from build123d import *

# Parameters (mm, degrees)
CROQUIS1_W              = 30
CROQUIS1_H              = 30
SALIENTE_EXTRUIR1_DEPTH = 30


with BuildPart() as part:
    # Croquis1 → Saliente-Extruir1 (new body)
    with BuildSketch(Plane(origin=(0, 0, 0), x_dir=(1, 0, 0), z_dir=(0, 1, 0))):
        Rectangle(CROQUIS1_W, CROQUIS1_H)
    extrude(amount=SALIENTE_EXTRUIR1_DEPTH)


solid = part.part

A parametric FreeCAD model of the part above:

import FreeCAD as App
import Part
import Sketcher
Q = App.Units.Quantity


def add_polygon(sketch, points):
    """Adds a closed chain of lines whose ends are joined by coincident constraints."""
    first, n = sketch.GeometryCount, len(points)
    for a, b in zip(points, points[1:] + points[:1]):
        sketch.addGeometry(Part.LineSegment(App.Vector(*a, 0), App.Vector(*b, 0)), False)
    for i in range(n):
        sketch.addConstraint(Sketcher.Constraint("Coincident", first + i, 2, first + (i + 1) % n, 1))

doc = App.newDocument("Part")
body = doc.addObject("PartDesign::Body", "Body")

# Sketch on XZ plane
sketch1 = body.newObject("Sketcher::SketchObject", "Sketch")
sketch1.AttachmentSupport = (doc.getObject("XZ_Plane"), [""])
sketch1.MapMode = "FlatFace"
add_polygon(sketch1, [(-15, -15), (-15, 15), (15, 15), (15, -15)])  # lines 0-3
sketch1.addConstraint([
    Sketcher.Constraint("Vertical", 0),
    Sketcher.Constraint("Horizontal", 1),
    Sketcher.Constraint("Vertical", 2),
    Sketcher.Constraint("Horizontal", 3),
    Sketcher.Constraint("Symmetric", 0, 2, 2, 2, -1, 1),
    Sketcher.Constraint("Equal", 3, 0),
    Sketcher.Constraint("DistanceX", 1, 1, 1, 2, Q("30 mm")),
])
pad1 = body.newObject("PartDesign::Pad", "Pad")
pad1.Profile = sketch1
pad1.Length = 30
pad1.Reversed = True

doc.recompute()
